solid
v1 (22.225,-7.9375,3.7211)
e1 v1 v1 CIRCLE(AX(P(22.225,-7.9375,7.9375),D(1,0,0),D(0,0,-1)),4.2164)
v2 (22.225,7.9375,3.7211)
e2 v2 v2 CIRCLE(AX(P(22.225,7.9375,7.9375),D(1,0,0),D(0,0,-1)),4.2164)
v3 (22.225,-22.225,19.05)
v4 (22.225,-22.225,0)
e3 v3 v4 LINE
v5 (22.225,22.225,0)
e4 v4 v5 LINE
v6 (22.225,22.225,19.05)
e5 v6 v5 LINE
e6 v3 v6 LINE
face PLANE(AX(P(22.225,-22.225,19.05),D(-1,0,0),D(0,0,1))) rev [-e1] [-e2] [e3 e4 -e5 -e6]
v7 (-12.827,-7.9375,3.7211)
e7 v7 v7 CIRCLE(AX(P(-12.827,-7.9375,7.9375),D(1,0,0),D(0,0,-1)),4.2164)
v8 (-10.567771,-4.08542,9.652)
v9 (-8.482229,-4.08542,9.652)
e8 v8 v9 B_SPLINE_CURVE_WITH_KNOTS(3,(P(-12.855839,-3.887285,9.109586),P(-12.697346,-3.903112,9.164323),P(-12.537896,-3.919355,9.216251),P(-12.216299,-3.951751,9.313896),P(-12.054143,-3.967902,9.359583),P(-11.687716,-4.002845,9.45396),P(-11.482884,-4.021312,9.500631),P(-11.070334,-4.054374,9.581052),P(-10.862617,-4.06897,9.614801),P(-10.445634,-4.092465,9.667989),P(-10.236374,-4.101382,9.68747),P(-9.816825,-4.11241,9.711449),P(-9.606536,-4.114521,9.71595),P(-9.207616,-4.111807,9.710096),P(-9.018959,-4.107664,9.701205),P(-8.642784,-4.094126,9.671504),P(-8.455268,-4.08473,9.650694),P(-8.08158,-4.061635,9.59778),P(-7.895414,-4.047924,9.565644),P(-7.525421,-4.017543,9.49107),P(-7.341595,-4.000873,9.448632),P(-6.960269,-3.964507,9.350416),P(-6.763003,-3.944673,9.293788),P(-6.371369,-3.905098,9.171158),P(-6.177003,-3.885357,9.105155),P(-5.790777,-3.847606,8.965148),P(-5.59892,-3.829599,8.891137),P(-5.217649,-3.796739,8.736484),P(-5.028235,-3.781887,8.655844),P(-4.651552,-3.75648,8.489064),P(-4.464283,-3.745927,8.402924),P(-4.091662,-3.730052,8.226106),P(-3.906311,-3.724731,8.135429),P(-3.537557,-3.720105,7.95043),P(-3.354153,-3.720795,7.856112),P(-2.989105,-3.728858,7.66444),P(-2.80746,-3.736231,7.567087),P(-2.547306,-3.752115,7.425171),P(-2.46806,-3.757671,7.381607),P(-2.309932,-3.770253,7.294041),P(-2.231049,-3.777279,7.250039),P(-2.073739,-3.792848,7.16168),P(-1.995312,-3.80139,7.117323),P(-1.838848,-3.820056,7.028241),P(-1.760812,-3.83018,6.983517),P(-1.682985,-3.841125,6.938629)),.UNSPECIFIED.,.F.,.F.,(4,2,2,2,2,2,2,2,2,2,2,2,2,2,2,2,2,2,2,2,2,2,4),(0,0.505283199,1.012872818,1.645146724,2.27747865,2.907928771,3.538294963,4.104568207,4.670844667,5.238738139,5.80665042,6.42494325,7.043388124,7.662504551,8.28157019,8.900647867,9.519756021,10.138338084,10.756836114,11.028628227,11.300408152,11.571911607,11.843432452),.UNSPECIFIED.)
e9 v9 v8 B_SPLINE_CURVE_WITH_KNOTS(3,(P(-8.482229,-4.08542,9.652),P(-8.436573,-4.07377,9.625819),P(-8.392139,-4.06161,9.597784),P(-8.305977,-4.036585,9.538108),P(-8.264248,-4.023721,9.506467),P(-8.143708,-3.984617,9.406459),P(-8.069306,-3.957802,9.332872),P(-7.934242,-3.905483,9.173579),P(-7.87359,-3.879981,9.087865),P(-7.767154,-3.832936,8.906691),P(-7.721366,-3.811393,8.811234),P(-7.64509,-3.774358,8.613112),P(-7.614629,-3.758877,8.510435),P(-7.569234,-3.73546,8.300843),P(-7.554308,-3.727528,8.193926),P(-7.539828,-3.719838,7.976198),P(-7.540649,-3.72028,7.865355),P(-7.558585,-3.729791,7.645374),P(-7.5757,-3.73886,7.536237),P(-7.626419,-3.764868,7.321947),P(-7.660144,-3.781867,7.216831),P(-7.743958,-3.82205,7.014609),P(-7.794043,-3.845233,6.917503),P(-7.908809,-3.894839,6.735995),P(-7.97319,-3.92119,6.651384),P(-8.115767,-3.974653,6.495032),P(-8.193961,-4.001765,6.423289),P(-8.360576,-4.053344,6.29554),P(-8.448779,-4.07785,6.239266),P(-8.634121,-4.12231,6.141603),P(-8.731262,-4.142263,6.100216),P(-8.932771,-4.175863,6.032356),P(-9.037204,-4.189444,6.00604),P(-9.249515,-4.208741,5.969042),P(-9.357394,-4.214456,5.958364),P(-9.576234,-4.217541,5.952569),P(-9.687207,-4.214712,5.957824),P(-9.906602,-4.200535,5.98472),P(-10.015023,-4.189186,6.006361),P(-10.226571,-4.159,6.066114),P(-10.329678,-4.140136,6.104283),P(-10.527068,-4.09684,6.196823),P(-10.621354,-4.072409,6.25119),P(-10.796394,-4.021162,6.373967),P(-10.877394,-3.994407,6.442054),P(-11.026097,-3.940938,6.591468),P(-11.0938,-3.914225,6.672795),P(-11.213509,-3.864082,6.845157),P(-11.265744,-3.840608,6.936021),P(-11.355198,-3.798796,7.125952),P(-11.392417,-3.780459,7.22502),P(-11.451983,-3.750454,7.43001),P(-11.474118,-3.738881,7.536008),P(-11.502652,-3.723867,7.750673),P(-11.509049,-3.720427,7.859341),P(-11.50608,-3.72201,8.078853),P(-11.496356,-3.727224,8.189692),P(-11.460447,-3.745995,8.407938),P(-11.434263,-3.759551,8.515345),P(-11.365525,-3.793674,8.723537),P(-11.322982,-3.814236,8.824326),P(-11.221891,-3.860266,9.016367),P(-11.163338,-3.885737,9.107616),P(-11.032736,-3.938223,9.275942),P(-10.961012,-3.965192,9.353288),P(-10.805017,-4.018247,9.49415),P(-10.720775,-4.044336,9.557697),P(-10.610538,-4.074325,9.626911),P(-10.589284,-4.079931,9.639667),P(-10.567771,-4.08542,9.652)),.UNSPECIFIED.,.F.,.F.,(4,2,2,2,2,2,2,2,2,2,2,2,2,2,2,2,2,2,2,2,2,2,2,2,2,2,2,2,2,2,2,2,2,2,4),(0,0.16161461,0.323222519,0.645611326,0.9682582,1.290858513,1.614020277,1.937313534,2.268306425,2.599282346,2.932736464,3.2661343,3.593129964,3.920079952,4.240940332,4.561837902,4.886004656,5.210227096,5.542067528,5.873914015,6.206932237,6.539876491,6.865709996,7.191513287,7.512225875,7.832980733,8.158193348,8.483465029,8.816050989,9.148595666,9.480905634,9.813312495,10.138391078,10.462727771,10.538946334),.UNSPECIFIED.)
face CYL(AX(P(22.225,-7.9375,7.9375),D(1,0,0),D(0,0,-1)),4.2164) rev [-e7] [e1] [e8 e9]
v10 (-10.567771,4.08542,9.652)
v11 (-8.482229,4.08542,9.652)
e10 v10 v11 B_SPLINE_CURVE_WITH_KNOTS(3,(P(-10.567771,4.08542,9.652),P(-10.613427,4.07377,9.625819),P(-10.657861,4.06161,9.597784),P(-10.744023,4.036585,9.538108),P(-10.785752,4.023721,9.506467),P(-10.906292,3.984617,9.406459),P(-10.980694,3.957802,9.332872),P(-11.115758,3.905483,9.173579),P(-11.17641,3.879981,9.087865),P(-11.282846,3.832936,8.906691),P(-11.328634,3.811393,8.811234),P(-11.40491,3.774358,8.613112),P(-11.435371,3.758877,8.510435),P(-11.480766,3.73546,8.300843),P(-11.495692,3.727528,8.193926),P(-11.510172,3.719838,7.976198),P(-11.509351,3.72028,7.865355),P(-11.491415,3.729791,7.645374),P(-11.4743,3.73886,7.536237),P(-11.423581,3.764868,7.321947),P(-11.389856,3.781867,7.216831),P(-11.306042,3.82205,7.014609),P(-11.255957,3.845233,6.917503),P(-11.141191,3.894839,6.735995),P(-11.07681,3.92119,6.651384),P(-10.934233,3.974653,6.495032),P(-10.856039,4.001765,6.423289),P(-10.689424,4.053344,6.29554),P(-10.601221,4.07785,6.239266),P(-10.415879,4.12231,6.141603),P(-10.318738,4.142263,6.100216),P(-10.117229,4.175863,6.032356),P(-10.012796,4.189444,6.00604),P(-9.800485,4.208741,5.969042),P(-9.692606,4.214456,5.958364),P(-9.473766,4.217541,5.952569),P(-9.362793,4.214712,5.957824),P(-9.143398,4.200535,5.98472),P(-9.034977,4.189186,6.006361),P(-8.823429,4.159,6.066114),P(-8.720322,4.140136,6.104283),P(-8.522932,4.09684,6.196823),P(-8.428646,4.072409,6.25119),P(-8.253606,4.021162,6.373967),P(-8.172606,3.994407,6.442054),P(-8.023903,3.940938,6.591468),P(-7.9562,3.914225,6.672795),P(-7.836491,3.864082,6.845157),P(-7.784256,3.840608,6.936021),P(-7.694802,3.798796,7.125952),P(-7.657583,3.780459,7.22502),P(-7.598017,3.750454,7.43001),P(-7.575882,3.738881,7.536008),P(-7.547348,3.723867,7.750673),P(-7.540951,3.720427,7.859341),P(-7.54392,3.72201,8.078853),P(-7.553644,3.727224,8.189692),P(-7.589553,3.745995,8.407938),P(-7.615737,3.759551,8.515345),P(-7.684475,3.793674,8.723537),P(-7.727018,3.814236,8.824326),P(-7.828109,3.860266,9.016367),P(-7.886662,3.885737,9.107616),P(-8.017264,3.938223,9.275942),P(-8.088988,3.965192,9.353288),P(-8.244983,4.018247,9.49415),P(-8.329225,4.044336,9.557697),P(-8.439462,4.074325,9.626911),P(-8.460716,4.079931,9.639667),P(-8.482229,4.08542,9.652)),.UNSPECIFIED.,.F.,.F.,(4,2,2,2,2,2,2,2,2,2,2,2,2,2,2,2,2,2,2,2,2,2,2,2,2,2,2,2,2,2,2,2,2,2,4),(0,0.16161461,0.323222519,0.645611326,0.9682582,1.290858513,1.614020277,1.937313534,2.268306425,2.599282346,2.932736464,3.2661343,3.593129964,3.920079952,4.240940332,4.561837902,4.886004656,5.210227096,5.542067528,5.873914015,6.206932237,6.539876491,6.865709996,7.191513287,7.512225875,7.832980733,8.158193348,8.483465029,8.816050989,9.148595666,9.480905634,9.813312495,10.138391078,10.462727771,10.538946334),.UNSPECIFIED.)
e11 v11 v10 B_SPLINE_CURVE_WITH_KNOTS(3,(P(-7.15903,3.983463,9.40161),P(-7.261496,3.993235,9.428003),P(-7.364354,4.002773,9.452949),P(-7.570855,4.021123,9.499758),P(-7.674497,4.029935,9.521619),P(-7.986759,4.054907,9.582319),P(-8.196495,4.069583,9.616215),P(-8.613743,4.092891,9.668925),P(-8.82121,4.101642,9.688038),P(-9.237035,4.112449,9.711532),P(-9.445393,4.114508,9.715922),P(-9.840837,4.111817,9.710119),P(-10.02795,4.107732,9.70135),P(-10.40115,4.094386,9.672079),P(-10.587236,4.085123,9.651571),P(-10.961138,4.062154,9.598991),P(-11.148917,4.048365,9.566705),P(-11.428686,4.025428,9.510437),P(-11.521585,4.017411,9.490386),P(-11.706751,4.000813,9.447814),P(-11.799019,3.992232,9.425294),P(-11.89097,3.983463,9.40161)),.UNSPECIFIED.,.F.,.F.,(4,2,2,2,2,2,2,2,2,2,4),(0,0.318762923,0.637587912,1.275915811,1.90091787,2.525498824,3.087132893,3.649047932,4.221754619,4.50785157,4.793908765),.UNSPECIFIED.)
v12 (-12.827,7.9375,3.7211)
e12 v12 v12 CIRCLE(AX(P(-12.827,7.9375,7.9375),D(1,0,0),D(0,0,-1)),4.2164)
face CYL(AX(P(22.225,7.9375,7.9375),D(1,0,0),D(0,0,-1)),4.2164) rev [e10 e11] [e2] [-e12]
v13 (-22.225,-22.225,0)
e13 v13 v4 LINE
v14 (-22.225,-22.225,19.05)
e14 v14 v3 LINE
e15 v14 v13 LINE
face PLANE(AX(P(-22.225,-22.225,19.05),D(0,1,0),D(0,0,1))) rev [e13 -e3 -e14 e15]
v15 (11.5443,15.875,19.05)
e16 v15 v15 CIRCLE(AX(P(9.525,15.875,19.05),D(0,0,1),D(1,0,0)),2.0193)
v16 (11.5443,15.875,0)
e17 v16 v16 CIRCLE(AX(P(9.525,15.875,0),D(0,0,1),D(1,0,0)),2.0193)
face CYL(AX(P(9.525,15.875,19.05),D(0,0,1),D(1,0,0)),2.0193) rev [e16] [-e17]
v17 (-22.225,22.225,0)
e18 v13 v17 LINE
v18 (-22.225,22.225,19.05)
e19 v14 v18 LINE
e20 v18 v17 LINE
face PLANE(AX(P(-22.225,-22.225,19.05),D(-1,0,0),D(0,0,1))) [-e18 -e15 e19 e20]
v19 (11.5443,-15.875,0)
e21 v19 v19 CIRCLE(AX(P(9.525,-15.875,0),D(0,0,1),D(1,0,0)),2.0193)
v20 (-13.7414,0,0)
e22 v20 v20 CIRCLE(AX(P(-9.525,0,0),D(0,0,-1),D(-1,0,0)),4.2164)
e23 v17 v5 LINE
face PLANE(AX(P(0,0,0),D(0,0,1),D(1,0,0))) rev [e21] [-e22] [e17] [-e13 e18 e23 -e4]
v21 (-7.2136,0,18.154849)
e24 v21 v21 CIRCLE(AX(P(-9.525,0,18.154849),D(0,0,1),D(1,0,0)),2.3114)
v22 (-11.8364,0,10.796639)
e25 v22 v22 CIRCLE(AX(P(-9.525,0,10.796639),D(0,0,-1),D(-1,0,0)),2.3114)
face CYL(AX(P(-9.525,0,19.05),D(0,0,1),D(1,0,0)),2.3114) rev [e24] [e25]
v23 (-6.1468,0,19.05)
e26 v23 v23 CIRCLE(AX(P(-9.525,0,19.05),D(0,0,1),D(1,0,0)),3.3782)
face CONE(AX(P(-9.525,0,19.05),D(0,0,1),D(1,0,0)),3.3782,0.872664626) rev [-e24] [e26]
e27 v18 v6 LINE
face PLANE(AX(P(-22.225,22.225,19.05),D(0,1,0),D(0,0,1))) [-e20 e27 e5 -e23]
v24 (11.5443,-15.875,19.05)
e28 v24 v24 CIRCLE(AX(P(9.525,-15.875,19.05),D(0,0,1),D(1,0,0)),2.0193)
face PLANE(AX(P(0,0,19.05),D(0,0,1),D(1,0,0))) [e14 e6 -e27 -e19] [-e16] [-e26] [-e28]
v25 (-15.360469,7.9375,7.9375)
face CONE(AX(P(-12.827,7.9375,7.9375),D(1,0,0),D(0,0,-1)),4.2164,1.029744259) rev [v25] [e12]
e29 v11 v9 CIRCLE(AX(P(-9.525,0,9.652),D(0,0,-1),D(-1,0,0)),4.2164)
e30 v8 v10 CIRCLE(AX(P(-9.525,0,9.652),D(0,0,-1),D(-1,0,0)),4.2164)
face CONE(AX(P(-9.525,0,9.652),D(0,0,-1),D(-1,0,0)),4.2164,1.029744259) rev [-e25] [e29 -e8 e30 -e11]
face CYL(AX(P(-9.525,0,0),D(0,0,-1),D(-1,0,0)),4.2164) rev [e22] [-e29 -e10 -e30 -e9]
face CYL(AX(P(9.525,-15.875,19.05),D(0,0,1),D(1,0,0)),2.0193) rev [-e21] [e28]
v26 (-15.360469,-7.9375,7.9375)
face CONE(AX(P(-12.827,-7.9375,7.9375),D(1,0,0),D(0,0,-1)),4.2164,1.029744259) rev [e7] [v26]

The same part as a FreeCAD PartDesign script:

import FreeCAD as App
import Part
import Sketcher
Q = App.Units.Quantity


def add_polygon(sketch, points):
    """Adds a closed chain of lines whose ends are joined by coincident constraints."""
    first, n = sketch.GeometryCount, len(points)
    for a, b in zip(points, points[1:] + points[:1]):
        sketch.addGeometry(Part.LineSegment(App.Vector(*a, 0), App.Vector(*b, 0)), False)
    for i in range(n):
        sketch.addConstraint(Sketcher.Constraint("Coincident", first + i, 2, first + (i + 1) % n, 1))

doc = App.newDocument("Part")
params = doc.addObject("Spreadsheet::Sheet", "Params")
for row, (alias, value) in enumerate([
    ("sketch1_width", "1.75 in"),
    ("pad1_length", "0.75 in"),
    ("sketch2_diameter", "0.182 in"),
    ("hole_diameter", "0.182 in"),
    ("hole_depth", "0.45 in"),
    ("hole_csink_diameter", "0.266 in"),
    ("sketch3_diameter", "0.332 in"),
    ("hole2_diameter", "0.332 in"),
    ("hole2_depth", "1.38 in"),
    ("sketch4_diameter", "0.159 in"),
    ("hole3_diameter", "0.159 in"),
    ("sketch5_diameter", "0.332 in"),
    ("hole4_diameter", "0.332 in"),
    ("hole4_depth", "0.38 in"),
], start=1):
    params.set(f"A{row}", alias)
    params.set(f"B{row}", "=" + value)
    params.setAlias(f"B{row}", alias)

body = doc.addObject("PartDesign::Body", "Body")

sketch1 = body.newObject("Sketcher::SketchObject", "Sketch")
sketch1.AttachmentSupport = (doc.getObject("XY_Plane"), [""])
sketch1.MapMode = "FlatFace"
add_polygon(sketch1, [(-22.225, 22.225), (-22.225, -22.225), (22.225, -22.225), (22.225, 22.225)])
sketch1.addConstraint([
    Sketcher.Constraint("Vertical", 0),
    Sketcher.Constraint("Horizontal", 1),
    Sketcher.Constraint("Vertical", 2),
    Sketcher.Constraint("Horizontal", 3),
    Sketcher.Constraint("Symmetric", 0, 2, 2, 2, -1, 1),
    Sketcher.Constraint("Equal", 3, 0),
    Sketcher.Constraint("DistanceX", 1, 1, 1, 2, Q("1.75 in")),
])
sketch1.setExpression("Constraints[10]", "Params.sketch1_width")
pad1 = body.newObject("PartDesign::Pad", "Pad")
pad1.Profile = sketch1
pad1.setExpression("Length", "Params.pad1_length")

sketch2 = body.newObject("Sketcher::SketchObject", "Sketch001")
sketch2.AttachmentSupport = (doc.getObject("XY_Plane"), [""])
sketch2.MapMode = "FlatFace"
sketch2.AttachmentOffset = App.Placement(App.Vector(0, 0, 0.75 * 25.4), App.Rotation())
sketch2.addGeometry(Part.Circle(App.Vector(-9.525, 0, 0), App.Vector(0, 0, 1), 2.3114), False)
sketch2.addConstraint([
    Sketcher.Constraint("PointOnObject", 0, 3, -1),
    Sketcher.Constraint("Diameter", 0, Q("0.182 in")),
    Sketcher.Constraint("DistanceX", 0, 3, -1, 1, Q("0.375 in")),
])
sketch2.setExpression("Constraints[1]", "Params.sketch2_diameter")
doc.recompute()
hole = body.newObject("PartDesign::Hole", "Hole")
hole.Profile = sketch2
hole.ThreadType = "None"
hole.setExpression("Diameter", "Params.hole_diameter")
hole.DepthType = "Dimension"
hole.setExpression("Depth", "Params.hole_depth")
hole.DrillPoint = "Angled"
hole.DrillPointAngle = 118
hole.HoleCutType = "Countersink"
hole.setExpression("HoleCutDiameter", "Params.hole_csink_diameter")
hole.HoleCutCountersinkAngle = 100

sketch3 = body.newObject("Sketcher::SketchObject", "Sketch002")
sketch3.AttachmentSupport = (doc.getObject("YZ_Plane"), [""])
sketch3.MapMode = "FlatFace"
sketch3.AttachmentOffset = App.Placement(App.Vector(0, 0, 0.875 * 25.4), App.Rotation())
sketch3.addGeometry([
    Part.Circle(App.Vector(7.9375, 7.9375, 0), App.Vector(0, 0, 1), 4.2164),
    Part.Circle(App.Vector(-7.9375, 7.9375, 0), App.Vector(0, 0, 1), 4.2164),
], False)
sketch3.addConstraint([
    Sketcher.Constraint("Equal", 0, 1),
    Sketcher.Constraint("Symmetric", 0, 3, 1, 3, -2),
    Sketcher.Constraint("Diameter", 0, Q("0.332 in")),
    Sketcher.Constraint("DistanceX", -1, 1, 0, 3, Q("0.3125 in")),
    Sketcher.Constraint("DistanceY", -1, 1, 0, 3, Q("0.3125 in")),
])
sketch3.setExpression("Constraints[2]", "Params.sketch3_diameter")
doc.recompute()
hole2 = body.newObject("PartDesign::Hole", "Hole001")
hole2.Profile = sketch3
hole2.ThreadType = "None"
hole2.setExpression("Diameter", "Params.hole2_diameter")
hole2.DepthType = "Dimension"
hole2.setExpression("Depth", "Params.hole2_depth")
hole2.DrillPoint = "Angled"
hole2.DrillPointAngle = 118

sketch4 = body.newObject("Sketcher::SketchObject", "Sketch003")
sketch4.AttachmentSupport = (doc.getObject("XY_Plane"), [""])
sketch4.MapMode = "FlatFace"
sketch4.AttachmentOffset = App.Placement(App.Vector(0, 0, 0.75 * 25.4), App.Rotation())
sketch4.addGeometry([
    Part.Circle(App.Vector(9.525, 15.875, 0), App.Vector(0, 0, 1), 2.0193),
    Part.Circle(App.Vector(9.525, -15.875, 0), App.Vector(0, 0, 1), 2.0193),
], False)
sketch4.addConstraint([
    Sketcher.Constraint("Equal", 0, 1),
    Sketcher.Constraint("Symmetric", 0, 3, 1, 3, -1),
    Sketcher.Constraint("Diameter", 0, Q("0.159 in")),
    Sketcher.Constraint("DistanceY", 1, 3, 0, 3, Q("1.25 in")),
    Sketcher.Constraint("DistanceX", -1, 1, 0, 3, Q("0.375 in")),
])
sketch4.setExpression("Constraints[2]", "Params.sketch4_diameter")
doc.recompute()
hole3 = body.newObject("PartDesign::Hole", "Hole002")
hole3.Profile = sketch4
hole3.ThreadType = "None"
hole3.setExpression("Diameter", "Params.hole3_diameter")
hole3.DepthType = "ThroughAll"

sketch5 = body.newObject("Sketcher::SketchObject", "Sketch004")
sketch5.AttachmentSupport = (doc.getObject("XY_Plane"), [""])
sketch5.MapMode = "FlatFace"
sketch5.addGeometry(Part.Circle(App.Vector(-9.525, 0, 0), App.Vector(0, 0, 1), 4.2164), False)
sketch5.addConstraint([
    Sketcher.Constraint("PointOnObject", 0, 3, -1),
    Sketcher.Constraint("Diameter", 0, Q("0.332 in")),
    Sketcher.Constraint("DistanceX", 0, 3, -1, 1, Q("0.375 in")),
])
sketch5.setExpression("Constraints[1]", "Params.sketch5_diameter")
doc.recompute()
hole4 = body.newObject("PartDesign::Hole", "Hole003")
hole4.Profile = sketch5
hole4.ThreadType = "None"
hole4.setExpression("Diameter", "Params.hole4_diameter")
hole4.DepthType = "Dimension"
hole4.setExpression("Depth", "Params.hole4_depth")
hole4.DrillPoint = "Angled"
hole4.DrillPointAngle = 118
hole4.Reversed = True

doc.recompute()
